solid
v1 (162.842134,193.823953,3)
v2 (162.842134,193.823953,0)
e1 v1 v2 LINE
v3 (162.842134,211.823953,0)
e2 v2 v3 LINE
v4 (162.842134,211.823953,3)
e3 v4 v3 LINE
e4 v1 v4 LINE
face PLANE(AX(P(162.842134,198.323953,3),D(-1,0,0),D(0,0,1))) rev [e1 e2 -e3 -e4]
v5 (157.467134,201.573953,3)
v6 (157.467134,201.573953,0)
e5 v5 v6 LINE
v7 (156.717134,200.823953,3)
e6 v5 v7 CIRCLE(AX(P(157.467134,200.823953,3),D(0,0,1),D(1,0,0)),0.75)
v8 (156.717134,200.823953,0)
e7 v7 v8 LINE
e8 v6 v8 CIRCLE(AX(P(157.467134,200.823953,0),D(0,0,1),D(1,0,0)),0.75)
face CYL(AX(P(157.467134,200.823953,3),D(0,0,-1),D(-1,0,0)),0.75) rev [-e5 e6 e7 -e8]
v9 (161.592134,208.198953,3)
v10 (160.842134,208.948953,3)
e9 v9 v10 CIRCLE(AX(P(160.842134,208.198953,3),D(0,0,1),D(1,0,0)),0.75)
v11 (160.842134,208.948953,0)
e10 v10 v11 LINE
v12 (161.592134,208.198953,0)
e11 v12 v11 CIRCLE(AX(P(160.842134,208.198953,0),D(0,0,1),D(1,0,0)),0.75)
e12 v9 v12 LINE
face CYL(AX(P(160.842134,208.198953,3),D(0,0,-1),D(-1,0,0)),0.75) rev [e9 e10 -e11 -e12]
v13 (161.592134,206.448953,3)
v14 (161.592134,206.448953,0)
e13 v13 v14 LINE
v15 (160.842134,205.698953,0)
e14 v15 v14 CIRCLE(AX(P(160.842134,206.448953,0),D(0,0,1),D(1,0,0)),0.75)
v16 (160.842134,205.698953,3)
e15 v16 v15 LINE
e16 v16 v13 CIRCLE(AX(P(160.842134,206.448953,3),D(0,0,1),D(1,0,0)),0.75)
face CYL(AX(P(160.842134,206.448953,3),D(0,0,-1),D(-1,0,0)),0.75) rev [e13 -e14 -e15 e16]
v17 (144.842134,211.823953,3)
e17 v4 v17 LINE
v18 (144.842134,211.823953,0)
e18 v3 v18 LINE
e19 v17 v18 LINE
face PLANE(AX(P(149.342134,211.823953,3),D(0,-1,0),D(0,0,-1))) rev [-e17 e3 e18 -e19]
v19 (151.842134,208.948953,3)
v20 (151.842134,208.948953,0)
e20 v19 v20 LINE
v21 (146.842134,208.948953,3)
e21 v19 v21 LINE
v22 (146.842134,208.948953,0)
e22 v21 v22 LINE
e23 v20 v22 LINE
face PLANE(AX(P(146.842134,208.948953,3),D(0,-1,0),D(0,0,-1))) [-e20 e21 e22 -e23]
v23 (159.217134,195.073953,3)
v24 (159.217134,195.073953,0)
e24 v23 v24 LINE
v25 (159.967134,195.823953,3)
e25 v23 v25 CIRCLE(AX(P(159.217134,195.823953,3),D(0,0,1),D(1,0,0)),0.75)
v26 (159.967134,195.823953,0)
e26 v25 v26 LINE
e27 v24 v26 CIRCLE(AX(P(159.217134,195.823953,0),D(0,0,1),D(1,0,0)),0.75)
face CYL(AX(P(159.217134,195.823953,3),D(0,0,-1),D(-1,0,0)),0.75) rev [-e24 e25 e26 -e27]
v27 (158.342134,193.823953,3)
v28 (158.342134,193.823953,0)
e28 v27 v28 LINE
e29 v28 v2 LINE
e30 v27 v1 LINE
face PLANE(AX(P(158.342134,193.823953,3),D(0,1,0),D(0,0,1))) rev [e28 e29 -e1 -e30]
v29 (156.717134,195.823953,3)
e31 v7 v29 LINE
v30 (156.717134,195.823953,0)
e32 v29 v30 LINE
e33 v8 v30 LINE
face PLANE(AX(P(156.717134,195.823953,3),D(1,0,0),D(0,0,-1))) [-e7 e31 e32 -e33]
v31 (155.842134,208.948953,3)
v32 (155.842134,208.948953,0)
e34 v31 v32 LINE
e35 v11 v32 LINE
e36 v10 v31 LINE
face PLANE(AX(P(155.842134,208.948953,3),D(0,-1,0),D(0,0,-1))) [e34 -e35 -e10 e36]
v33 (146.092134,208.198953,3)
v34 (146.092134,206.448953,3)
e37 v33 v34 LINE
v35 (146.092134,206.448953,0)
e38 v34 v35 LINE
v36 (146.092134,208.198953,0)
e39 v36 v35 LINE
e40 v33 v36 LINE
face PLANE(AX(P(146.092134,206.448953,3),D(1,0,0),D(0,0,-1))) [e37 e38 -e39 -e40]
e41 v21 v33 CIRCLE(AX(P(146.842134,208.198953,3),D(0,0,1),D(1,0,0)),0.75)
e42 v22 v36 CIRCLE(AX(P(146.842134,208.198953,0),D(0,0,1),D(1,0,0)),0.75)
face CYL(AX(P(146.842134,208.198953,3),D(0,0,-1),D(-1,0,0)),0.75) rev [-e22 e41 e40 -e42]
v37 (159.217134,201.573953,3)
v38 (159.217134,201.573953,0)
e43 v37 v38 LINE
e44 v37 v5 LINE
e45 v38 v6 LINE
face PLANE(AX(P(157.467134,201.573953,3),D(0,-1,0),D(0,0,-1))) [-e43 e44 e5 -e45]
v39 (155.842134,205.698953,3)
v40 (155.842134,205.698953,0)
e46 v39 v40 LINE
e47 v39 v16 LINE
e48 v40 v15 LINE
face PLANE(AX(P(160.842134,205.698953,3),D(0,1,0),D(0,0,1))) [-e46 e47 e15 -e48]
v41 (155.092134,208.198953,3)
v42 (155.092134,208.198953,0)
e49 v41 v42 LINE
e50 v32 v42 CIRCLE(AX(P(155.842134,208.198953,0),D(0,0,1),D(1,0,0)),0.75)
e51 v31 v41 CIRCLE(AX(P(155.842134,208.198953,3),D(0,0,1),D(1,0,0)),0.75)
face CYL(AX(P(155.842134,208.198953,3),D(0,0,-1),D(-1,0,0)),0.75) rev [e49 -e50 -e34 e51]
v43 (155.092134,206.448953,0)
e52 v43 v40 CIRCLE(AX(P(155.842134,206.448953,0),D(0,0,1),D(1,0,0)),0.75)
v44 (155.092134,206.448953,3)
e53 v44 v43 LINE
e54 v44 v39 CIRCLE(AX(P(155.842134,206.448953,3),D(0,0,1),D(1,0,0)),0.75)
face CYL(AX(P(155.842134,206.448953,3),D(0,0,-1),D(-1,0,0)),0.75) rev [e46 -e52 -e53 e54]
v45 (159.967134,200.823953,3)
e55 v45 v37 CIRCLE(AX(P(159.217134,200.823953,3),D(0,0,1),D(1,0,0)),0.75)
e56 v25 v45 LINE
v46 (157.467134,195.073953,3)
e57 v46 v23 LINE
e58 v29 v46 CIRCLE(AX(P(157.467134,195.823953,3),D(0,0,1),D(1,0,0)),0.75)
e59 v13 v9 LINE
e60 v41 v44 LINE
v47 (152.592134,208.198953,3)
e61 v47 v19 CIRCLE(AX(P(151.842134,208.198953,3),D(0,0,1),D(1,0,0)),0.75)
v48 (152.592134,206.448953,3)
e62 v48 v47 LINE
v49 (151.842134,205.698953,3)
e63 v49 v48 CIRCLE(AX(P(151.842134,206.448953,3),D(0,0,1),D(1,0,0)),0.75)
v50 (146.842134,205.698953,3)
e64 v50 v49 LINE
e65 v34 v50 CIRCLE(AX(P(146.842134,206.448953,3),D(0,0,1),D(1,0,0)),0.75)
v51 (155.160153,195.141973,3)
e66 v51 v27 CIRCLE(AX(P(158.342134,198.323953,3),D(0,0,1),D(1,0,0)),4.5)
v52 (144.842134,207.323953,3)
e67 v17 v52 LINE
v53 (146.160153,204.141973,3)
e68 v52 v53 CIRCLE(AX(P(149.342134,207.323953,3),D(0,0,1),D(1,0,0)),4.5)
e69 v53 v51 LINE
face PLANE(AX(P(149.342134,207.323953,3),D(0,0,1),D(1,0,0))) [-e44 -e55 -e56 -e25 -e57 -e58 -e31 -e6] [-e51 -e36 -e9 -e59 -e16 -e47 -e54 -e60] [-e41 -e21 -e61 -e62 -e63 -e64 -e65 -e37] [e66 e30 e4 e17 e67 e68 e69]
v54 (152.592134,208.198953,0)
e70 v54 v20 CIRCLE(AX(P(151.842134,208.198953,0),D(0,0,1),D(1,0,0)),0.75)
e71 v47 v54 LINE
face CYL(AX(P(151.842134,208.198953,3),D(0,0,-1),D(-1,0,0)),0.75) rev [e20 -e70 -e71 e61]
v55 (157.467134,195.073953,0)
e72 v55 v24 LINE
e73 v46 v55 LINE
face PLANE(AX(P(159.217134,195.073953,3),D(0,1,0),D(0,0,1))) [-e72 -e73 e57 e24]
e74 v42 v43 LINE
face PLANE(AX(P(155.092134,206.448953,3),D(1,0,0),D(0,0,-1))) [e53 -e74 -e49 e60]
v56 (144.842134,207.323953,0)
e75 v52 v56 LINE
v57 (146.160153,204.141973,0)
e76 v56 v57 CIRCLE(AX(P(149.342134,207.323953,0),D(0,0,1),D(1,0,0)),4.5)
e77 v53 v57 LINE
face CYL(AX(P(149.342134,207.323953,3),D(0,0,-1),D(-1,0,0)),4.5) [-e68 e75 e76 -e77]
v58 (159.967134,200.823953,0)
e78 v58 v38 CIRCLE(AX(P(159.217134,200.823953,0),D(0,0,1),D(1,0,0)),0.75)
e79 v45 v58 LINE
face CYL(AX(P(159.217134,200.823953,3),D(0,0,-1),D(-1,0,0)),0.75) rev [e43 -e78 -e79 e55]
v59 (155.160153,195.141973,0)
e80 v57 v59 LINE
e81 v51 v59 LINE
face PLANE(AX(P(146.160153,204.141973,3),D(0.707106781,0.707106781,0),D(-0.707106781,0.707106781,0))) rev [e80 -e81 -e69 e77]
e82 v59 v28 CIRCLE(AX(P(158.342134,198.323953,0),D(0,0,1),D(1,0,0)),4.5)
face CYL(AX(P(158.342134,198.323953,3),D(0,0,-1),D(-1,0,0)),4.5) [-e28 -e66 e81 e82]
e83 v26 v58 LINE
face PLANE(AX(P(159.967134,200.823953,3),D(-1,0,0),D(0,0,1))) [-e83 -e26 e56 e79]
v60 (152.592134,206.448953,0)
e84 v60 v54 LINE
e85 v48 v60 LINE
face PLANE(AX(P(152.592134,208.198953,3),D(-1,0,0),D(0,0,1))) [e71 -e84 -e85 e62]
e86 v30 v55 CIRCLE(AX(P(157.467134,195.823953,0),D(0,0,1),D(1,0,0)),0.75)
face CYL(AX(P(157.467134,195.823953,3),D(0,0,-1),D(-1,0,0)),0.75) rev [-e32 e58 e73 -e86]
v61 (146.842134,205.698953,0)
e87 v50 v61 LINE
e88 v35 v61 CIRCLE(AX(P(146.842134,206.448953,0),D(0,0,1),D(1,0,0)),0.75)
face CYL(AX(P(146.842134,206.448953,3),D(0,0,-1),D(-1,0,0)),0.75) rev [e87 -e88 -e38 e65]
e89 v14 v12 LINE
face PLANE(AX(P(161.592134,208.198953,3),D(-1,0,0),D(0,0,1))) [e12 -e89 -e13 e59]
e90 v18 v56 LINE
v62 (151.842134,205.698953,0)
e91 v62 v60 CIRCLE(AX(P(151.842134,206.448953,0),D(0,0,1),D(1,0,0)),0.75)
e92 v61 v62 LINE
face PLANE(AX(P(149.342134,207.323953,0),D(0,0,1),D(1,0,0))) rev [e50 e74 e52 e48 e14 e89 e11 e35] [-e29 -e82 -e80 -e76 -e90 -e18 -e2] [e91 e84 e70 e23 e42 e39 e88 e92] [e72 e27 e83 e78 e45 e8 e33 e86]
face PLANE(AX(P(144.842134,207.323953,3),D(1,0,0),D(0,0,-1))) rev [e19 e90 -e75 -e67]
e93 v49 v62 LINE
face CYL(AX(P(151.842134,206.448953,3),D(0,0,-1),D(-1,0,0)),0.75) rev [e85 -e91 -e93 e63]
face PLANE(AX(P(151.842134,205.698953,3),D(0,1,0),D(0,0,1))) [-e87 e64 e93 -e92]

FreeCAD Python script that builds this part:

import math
import FreeCAD as App
import Part
import Sketcher
from FreeCAD import Vector

doc = App.newDocument("Part")
body = doc.addObject("PartDesign::Body", "Body")

# Sketch on XY plane
sketch1 = body.newObject("Sketcher::SketchObject", "Sketch")
sketch1.AttachmentSupport = (doc.getObject("XY_Plane"), [""])
sketch1.MapMode = "FlatFace"
sketch1.addGeometry([
    Part.LineSegment(Vector(162.8, 193.8, 0), Vector(162.8, 211.8, 0)),  # 0
    Part.LineSegment(Vector(162.8, 211.8, 0), Vector(144.8, 211.8, 0)),  # 1
    Part.LineSegment(Vector(144.8, 211.8, 0), Vector(144.8, 207.3, 0)),  # 2
    Part.ArcOfCircle(Part.Circle(Vector(149.3, 207.3, 0), Vector(0, 0, 1), 4.5), math.radians(180), math.radians(225)),  # 3
    Part.LineSegment(Vector(146.2, 204.1, 0), Vector(155.2, 195.1, 0)),  # 4
    Part.ArcOfCircle(Part.Circle(Vector(158.3, 198.3, 0), Vector(0, 0, 1), 4.5), math.radians(-135), math.radians(-90)),  # 5
    Part.LineSegment(Vector(158.3, 193.8, 0), Vector(162.8, 193.8, 0)),  # 6
    Part.LineSegment(Vector(156.7, 195.8, 0), Vector(156.7, 200.8, 0)),  # 7
    Part.ArcOfCircle(Part.Circle(Vector(157.5, 200.8, 0), Vector(0, 0, 1), 0.8), math.radians(90), math.radians(180)),  # 8
    Part.LineSegment(Vector(157.5, 201.6, 0), Vector(159.2, 201.6, 0)),  # 9
    Part.ArcOfCircle(Part.Circle(Vector(159.2, 200.8, 0), Vector(0, 0, 1), 0.8), math.radians(0), math.radians(90)),  # 10
    Part.LineSegment(Vector(160, 200.8, 0), Vector(160, 195.8, 0)),  # 11
    Part.ArcOfCircle(Part.Circle(Vector(159.2, 195.8, 0), Vector(0, 0, 1), 0.8), math.radians(-90), math.radians(0)),  # 12
    Part.LineSegment(Vector(159.2, 195.1, 0), Vector(157.5, 195.1, 0)),  # 13
    Part.ArcOfCircle(Part.Circle(Vector(157.5, 195.8, 0), Vector(0, 0, 1), 0.8), math.radians(180), math.radians(270)),  # 14
    Part.LineSegment(Vector(160.8, 205.7, 0), Vector(155.8, 205.7, 0)),  # 15
    Part.ArcOfCircle(Part.Circle(Vector(155.8, 206.4, 0), Vector(0, 0, 1), 0.8), math.radians(180), math.radians(270)),  # 16
    Part.LineSegment(Vector(155.1, 206.4, 0), Vector(155.1, 208.2, 0)),  # 17
    Part.ArcOfCircle(Part.Circle(Vector(155.8, 208.2, 0), Vector(0, 0, 1), 0.8), math.radians(90), math.radians(180)),  # 18
    Part.LineSegment(Vector(155.8, 208.9, 0), Vector(160.8, 208.9, 0)),  # 19
    Part.ArcOfCircle(Part.Circle(Vector(160.8, 208.2, 0), Vector(0, 0, 1), 0.8), math.radians(0), math.radians(90)),  # 20
    Part.LineSegment(Vector(161.6, 208.2, 0), Vector(161.6, 206.4, 0)),  # 21
    Part.ArcOfCircle(Part.Circle(Vector(160.8, 206.4, 0), Vector(0, 0, 1), 0.8), math.radians(-90), math.radians(0)),  # 22
    Part.LineSegment(Vector(151.8, 205.7, 0), Vector(146.8, 205.7, 0)),  # 23
    Part.ArcOfCircle(Part.Circle(Vector(146.8, 206.4, 0), Vector(0, 0, 1), 0.8), math.radians(180), math.radians(270)),  # 24
    Part.LineSegment(Vector(146.1, 206.4, 0), Vector(146.1, 208.2, 0)),  # 25
    Part.ArcOfCircle(Part.Circle(Vector(146.8, 208.2, 0), Vector(0, 0, 1), 0.8), math.radians(90), math.radians(180)),  # 26
    Part.LineSegment(Vector(146.8, 208.9, 0), Vector(151.8, 208.9, 0)),  # 27
    Part.ArcOfCircle(Part.Circle(Vector(151.8, 208.2, 0), Vector(0, 0, 1), 0.8), math.radians(0), math.radians(90)),  # 28
    Part.LineSegment(Vector(152.6, 208.2, 0), Vector(152.6, 206.4, 0)),  # 29
    Part.ArcOfCircle(Part.Circle(Vector(151.8, 206.4, 0), Vector(0, 0, 1), 0.8), math.radians(-90), math.radians(0)),  # 30
], False)
sketch1.addConstraint([
    Sketcher.Constraint("Coincident", 0, 2, 1, 1),
    Sketcher.Constraint("Coincident", 1, 2, 2, 1),
    Sketcher.Constraint("Tangent", 2, 2, 3, 1),
    Sketcher.Constraint("Tangent", 3, 2, 4, 1),
    Sketcher.Constraint("Tangent", 4, 2, 5, 1),
    Sketcher.Constraint("Tangent", 5, 2, 6, 1),
    Sketcher.Constraint("Coincident", 6, 2, 0, 1),
    Sketcher.Constraint("Tangent", 7, 2, 8, 2),
    Sketcher.Constraint("Tangent", 8, 1, 9, 1),
    Sketcher.Constraint("Tangent", 9, 2, 10, 2),
    Sketcher.Constraint("Tangent", 10, 1, 11, 1),
    Sketcher.Constraint("Tangent", 11, 2, 12, 2),
    Sketcher.Constraint("Tangent", 12, 1, 13, 1),
    Sketcher.Constraint("Tangent", 13, 2, 14, 2),
    Sketcher.Constraint("Tangent", 14, 1, 7, 1),
    Sketcher.Constraint("Tangent", 15, 2, 16, 2),
    Sketcher.Constraint("Tangent", 16, 1, 17, 1),
    Sketcher.Constraint("Tangent", 17, 2, 18, 2),
    Sketcher.Constraint("Tangent", 18, 1, 19, 1),
    Sketcher.Constraint("Tangent", 19, 2, 20, 2),
    Sketcher.Constraint("Tangent", 20, 1, 21, 1),
    Sketcher.Constraint("Tangent", 21, 2, 22, 2),
    Sketcher.Constraint("Tangent", 22, 1, 15, 1),
    Sketcher.Constraint("Tangent", 23, 2, 24, 2),
    Sketcher.Constraint("Tangent", 24, 1, 25, 1),
    Sketcher.Constraint("Tangent", 25, 2, 26, 2),
    Sketcher.Constraint("Tangent", 26, 1, 27, 1),
    Sketcher.Constraint("Tangent", 27, 2, 28, 2),
    Sketcher.Constraint("Tangent", 28, 1, 29, 1),
    Sketcher.Constraint("Tangent", 29, 2, 30, 2),
    Sketcher.Constraint("Tangent", 30, 1, 23, 1),
    Sketcher.Constraint("Vertical", 0),
    Sketcher.Constraint("Horizontal", 1),
    Sketcher.Constraint("Vertical", 2),
    Sketcher.Constraint("Horizontal", 6),
    Sketcher.Constraint("Vertical", 7),
    Sketcher.Constraint("Horizontal", 9),
    Sketcher.Constraint("Vertical", 11),
    Sketcher.Constraint("Horizontal", 13),
    Sketcher.Constraint("Horizontal", 15),
    Sketcher.Constraint("Vertical", 17),
    Sketcher.Constraint("Horizontal", 19),
    Sketcher.Constraint("Vertical", 21),
    Sketcher.Constraint("Horizontal", 23),
    Sketcher.Constraint("Vertical", 25),
    Sketcher.Constraint("Horizontal", 27),
    Sketcher.Constraint("Vertical", 29),
    Sketcher.Constraint("Equal", 3, 5),
    Sketcher.Constraint("Equal", 8, 10),
    Sketcher.Constraint("Equal", 10, 12),
    Sketcher.Constraint("Equal", 12, 14),
    Sketcher.Constraint("Equal", 14, 16),
    Sketcher.Constraint("Equal", 16, 18),
    Sketcher.Constraint("Equal", 18, 20),
    Sketcher.Constraint("Equal", 20, 22),
    Sketcher.Constraint("Equal", 22, 24),
    Sketcher.Constraint("Equal", 24, 26),
    Sketcher.Constraint("Equal", 26, 28),
    Sketcher.Constraint("Equal", 28, 30),
    Sketcher.Constraint("Horizontal", 22, 3, 24, 3),
    Sketcher.Constraint("Horizontal", 20, 3, 26, 3),
    Sketcher.Constraint("Equal", 19, 23),
    Sketcher.Constraint("Equal", 1, 0),
    Sketcher.Constraint("Equal", 6, 2),
    Sketcher.Constraint("Equal", 27, 7),
    Sketcher.Constraint("Equal", 13, 17),
    Sketcher.Constraint("Radius", 3, 4.5),
    Sketcher.Constraint("DistanceX", 1, 2, 1, 1, 18.0),
    Sketcher.Constraint("DistanceX", 15, 2, 15, 1, 5.0),
    Sketcher.Constraint("Radius", 8, 0.75),
    Sketcher.Constraint("DistanceX", 6, 1, 6, 2, 4.5),
    Sketcher.Constraint("DistanceX", 24, 3, 16, 3, 9.0),
    Sketcher.Constraint("DistanceX", 20, 3, 0, 2, 2.0),
    Sketcher.Constraint("DistanceY", 10, 3, 0, 2, 11.0),
    Sketcher.Constraint("DistanceX", 9, 1, 9, 2, 1.75),
    Sketcher.Constraint("DistanceX", 8, 3, 5, 3, 0.875),
    Sketcher.Constraint("DistanceY", 8, 3, 16, 3, 5.625),
    Sketcher.Constraint("DistanceX", -1, 1, 3, 3, 149.342134),
    Sketcher.Constraint("DistanceY", -1, 1, 3, 3, 207.323953),
])
pad1 = body.newObject("PartDesign::Pad", "Pad")
pad1.Profile = sketch1
pad1.Length = 3

doc.recompute()
